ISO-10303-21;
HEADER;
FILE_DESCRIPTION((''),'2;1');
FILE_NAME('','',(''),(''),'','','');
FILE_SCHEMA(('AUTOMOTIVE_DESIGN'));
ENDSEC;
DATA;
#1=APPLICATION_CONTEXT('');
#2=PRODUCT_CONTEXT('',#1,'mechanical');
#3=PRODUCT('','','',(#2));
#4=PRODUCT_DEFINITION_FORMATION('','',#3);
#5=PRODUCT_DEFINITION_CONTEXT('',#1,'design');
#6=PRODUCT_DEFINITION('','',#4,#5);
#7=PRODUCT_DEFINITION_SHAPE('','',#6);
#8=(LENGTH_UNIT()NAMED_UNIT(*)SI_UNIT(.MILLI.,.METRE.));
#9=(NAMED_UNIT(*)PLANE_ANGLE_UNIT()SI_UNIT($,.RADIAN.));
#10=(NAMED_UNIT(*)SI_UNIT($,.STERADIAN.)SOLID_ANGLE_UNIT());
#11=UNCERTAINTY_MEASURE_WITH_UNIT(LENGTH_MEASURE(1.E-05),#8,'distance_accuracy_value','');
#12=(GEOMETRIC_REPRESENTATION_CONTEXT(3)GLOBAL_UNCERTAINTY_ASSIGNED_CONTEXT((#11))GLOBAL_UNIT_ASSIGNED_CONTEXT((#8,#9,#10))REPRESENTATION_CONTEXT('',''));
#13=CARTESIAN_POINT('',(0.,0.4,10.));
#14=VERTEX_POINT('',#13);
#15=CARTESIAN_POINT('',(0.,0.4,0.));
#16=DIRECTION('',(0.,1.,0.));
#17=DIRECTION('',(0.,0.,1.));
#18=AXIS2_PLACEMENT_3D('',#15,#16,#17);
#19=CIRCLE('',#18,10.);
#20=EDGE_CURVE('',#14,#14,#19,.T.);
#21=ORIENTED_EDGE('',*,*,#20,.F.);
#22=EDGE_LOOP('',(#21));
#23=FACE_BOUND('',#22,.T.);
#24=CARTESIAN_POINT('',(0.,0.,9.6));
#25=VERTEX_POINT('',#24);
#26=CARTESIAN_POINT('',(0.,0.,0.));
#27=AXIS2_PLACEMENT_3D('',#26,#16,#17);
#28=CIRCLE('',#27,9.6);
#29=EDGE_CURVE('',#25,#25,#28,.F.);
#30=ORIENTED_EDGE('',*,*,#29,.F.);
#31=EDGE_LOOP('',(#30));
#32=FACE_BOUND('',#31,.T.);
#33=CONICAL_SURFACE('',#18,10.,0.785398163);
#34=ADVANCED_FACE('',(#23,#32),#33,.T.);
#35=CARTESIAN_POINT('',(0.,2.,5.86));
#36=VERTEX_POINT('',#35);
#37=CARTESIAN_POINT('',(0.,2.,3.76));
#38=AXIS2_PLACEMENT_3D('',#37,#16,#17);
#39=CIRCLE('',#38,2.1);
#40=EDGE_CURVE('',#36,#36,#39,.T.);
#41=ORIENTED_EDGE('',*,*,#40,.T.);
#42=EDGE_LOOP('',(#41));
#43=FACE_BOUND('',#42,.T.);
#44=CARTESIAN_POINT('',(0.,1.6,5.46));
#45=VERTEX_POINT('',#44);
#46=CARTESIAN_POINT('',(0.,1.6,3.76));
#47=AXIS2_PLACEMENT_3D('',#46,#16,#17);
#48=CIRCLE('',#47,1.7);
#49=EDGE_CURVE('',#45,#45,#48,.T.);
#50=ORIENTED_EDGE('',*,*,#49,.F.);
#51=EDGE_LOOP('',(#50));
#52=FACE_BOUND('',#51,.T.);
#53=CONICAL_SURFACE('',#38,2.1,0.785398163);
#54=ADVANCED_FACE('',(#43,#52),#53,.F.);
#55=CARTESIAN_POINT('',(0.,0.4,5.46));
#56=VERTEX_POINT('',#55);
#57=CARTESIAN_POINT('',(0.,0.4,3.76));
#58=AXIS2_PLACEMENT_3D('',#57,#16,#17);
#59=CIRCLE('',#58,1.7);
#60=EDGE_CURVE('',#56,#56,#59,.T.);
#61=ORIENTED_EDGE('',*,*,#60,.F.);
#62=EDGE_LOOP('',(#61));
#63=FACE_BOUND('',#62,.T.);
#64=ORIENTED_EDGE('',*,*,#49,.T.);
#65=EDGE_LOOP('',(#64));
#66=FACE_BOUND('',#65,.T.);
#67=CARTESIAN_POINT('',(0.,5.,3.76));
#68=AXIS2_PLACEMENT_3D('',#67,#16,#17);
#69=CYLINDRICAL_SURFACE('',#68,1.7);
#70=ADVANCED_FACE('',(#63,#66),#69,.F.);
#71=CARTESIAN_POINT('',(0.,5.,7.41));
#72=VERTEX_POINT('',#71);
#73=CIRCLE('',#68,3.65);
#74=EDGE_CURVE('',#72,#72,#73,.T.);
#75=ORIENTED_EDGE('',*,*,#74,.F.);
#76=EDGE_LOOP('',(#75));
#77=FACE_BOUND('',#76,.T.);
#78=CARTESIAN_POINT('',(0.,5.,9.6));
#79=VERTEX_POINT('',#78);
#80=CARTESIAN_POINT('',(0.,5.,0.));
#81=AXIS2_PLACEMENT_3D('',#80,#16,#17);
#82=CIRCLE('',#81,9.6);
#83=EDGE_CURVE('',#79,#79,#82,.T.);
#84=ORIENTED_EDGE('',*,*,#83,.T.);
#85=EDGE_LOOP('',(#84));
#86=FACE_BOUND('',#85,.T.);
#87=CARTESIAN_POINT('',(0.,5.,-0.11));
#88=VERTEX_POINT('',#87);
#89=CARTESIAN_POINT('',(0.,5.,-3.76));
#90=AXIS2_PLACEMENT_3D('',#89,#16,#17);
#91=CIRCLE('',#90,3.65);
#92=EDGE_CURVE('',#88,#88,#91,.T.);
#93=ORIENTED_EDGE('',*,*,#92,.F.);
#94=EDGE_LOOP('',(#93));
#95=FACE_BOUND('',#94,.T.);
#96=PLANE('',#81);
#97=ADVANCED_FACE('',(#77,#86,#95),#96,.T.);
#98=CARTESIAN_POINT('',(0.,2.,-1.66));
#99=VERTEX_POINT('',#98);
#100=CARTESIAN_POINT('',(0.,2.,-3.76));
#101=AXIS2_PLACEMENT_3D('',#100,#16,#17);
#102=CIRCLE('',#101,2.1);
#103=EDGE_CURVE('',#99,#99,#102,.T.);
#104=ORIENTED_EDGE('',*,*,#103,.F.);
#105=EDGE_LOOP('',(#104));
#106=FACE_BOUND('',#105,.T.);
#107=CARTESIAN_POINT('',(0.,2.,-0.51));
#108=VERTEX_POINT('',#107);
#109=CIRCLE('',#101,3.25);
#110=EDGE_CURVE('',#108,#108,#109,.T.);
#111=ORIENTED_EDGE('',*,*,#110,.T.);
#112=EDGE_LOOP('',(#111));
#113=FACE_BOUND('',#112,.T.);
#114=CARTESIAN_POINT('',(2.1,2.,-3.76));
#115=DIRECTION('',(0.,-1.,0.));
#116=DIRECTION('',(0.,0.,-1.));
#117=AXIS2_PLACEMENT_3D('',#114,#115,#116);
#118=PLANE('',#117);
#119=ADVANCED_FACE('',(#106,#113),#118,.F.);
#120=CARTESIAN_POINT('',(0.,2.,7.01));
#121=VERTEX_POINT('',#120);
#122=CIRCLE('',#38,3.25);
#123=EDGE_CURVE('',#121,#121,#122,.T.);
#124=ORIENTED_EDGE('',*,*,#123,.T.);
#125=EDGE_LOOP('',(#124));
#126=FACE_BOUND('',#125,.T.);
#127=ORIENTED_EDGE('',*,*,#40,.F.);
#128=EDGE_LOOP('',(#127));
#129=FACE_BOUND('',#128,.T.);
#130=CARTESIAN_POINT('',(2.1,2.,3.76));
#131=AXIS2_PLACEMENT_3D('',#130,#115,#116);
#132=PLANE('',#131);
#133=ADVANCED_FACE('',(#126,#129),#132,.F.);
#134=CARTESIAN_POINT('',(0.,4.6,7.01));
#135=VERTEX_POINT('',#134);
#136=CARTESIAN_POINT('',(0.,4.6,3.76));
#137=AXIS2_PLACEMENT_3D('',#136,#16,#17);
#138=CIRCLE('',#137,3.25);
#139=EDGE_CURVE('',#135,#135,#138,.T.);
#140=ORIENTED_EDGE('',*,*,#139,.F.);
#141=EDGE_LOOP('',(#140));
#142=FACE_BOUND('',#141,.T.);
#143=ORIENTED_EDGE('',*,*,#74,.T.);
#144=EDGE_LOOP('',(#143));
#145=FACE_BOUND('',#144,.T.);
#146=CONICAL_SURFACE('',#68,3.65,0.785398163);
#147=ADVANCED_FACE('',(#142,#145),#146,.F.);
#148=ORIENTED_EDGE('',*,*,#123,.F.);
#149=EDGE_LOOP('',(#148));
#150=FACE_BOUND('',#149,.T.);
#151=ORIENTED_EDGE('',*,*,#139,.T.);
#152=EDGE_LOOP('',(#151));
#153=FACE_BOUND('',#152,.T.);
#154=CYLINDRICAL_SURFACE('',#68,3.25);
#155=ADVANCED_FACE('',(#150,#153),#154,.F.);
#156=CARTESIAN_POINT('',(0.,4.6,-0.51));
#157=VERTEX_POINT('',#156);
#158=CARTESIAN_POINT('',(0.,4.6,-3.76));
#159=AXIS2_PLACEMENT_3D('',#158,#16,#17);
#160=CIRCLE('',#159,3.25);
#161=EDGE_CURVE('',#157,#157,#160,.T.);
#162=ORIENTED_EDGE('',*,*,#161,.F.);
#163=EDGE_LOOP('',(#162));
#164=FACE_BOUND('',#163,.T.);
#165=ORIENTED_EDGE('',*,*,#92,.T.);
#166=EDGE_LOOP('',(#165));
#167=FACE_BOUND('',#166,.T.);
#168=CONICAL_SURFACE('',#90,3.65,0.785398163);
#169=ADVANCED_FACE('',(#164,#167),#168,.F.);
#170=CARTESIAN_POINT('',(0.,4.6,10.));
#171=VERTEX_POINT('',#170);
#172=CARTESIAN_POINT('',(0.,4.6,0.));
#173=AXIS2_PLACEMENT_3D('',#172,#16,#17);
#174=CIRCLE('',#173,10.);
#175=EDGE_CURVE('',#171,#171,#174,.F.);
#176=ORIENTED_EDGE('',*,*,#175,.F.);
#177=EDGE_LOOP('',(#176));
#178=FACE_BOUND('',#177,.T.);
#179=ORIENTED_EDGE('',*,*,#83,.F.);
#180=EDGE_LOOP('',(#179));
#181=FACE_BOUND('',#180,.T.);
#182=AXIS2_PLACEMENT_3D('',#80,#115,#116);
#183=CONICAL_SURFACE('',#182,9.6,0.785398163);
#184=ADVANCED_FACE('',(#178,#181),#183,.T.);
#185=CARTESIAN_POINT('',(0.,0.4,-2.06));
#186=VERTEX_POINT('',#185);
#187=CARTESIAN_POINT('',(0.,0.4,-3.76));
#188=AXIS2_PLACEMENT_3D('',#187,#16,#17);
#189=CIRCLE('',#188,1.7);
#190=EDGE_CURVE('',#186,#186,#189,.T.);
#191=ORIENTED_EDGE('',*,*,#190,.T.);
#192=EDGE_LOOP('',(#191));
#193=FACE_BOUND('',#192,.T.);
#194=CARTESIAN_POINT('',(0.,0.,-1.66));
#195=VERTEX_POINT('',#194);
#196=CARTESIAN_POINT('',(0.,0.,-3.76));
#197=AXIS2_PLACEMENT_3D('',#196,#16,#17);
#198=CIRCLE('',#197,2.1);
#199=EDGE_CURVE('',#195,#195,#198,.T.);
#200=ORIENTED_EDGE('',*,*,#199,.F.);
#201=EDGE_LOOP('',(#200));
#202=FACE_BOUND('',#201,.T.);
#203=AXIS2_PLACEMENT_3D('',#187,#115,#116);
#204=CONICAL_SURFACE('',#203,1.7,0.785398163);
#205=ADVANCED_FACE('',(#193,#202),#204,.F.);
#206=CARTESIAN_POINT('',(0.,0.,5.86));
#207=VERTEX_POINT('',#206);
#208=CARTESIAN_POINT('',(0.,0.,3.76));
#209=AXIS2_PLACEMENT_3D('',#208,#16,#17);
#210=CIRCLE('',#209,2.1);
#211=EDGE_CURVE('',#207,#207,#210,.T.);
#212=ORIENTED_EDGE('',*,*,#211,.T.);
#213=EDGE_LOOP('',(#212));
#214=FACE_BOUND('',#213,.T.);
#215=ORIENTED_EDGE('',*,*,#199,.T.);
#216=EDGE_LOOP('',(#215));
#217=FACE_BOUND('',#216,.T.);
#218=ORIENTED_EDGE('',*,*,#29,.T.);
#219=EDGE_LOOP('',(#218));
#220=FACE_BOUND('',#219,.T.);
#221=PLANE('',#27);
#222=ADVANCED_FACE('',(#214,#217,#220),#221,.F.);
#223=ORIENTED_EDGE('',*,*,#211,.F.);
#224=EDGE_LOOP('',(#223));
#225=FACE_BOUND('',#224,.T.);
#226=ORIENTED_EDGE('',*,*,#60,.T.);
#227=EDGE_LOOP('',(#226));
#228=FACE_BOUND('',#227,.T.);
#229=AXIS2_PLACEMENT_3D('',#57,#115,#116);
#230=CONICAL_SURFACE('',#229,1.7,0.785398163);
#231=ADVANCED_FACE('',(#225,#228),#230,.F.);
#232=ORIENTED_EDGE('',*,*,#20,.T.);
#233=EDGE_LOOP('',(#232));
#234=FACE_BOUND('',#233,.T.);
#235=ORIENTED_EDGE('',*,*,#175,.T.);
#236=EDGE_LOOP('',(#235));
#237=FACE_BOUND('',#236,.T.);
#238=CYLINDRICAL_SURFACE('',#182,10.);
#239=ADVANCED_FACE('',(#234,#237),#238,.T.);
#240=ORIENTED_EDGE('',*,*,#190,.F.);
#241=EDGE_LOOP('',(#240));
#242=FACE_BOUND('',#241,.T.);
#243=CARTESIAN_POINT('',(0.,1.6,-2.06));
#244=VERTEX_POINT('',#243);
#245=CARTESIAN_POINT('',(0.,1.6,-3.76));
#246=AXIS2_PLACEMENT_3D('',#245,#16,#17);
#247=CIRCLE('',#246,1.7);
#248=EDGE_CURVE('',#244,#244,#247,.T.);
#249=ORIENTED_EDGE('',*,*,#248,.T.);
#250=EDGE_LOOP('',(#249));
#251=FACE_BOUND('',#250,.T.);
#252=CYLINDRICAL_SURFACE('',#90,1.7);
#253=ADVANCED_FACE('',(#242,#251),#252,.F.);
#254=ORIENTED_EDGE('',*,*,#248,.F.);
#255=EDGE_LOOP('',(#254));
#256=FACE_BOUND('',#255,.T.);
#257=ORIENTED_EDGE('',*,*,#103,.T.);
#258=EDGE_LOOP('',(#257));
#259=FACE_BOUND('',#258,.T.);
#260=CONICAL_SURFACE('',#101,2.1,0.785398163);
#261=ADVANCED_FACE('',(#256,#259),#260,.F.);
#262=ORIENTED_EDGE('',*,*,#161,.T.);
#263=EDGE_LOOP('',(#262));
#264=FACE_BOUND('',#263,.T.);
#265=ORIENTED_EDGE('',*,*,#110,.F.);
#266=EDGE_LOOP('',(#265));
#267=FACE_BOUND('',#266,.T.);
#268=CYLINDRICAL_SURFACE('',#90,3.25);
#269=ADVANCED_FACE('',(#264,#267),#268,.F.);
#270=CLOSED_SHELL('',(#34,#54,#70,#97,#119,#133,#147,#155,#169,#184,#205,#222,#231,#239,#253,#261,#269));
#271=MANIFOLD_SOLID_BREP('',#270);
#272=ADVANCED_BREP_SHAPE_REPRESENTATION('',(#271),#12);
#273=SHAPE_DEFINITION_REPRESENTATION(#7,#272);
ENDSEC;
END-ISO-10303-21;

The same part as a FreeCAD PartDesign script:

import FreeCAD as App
import Part
import Sketcher
from FreeCAD import Vector


def edges_at(feature, points):
    """Names of the edges that pass closest to the given points."""
    edges = feature.Shape.Edges
    near = lambda p: min(range(len(edges)), key=lambda i: edges[i].distToShape(Part.Vertex(*p))[0])
    return sorted({f"Edge{near(p) + 1}" for p in points})


def add_polygon(sketch, points):
    """Adds a closed chain of lines whose ends are joined by coincident constraints."""
    first, n = sketch.GeometryCount, len(points)
    for a, b in zip(points, points[1:] + points[:1]):
        sketch.addGeometry(Part.LineSegment(App.Vector(*a, 0), App.Vector(*b, 0)), False)
    for i in range(n):
        sketch.addConstraint(Sketcher.Constraint("Coincident", first + i, 2, first + (i + 1) % n, 1))

doc = App.newDocument("Part")
body = doc.addObject("PartDesign::Body", "Body")

sketch1 = body.newObject("Sketcher::SketchObject", "Sketch")
sketch1.AttachmentSupport = (doc.getObject("XZ_Plane"), [""])
sketch1.MapMode = "FlatFace"
sketch1.addGeometry(Part.Circle(Vector(0, 0, 0), Vector(0, 0, 1), 10), False)
sketch1.addConstraint(Sketcher.Constraint("Coincident", 0, 3, -1, 1))
sketch1.addConstraint(Sketcher.Constraint("Diameter", 0, 20.0))
pad1 = body.newObject("PartDesign::Pad", "Pad")
pad1.Profile = sketch1
pad1.Length = 5
pad1.Reversed = True

sketch2 = body.newObject("Sketcher::SketchObject", "Sketch001")
sketch2.AttachmentSupport = (doc.getObject("YZ_Plane"), [""])
sketch2.MapMode = "FlatFace"
add_polygon(sketch2, [(0, -3.8), (5, -3.8), (5, -0.1), (4.6, -0.5), (2, -0.5), (2, -1.7), (1.6, -2.1), (0.4, -2.1), (0, -1.7)])
sketch2.addGeometry(Part.LineSegment(Vector(5, -3.8, 0), Vector(0, -3.8, 0)), True)
sketch2.addConstraint(Sketcher.Constraint("Horizontal", 0))
sketch2.addConstraint(Sketcher.Constraint("Vertical", 1))
sketch2.addConstraint(Sketcher.Constraint("Horizontal", 3))
sketch2.addConstraint(Sketcher.Constraint("Vertical", 4))
sketch2.addConstraint(Sketcher.Constraint("Horizontal", 6))
sketch2.addConstraint(Sketcher.Constraint("Vertical", 8))
sketch2.addConstraint(Sketcher.Constraint("Horizontal", 9))
sketch2.addConstraint(Sketcher.Constraint("Coincident", 9, 1, 0, 2))
sketch2.addConstraint(Sketcher.Constraint("PointOnObject", 7, 2, -2))
sketch2.addConstraint(Sketcher.Constraint("PointOnObject", 9, 2, -2))
sketch2.addConstraint(Sketcher.Constraint("Parallel", 2, 5))
sketch2.addConstraint(Sketcher.Constraint("Perpendicular", 5, 7))
sketch2.addConstraint(Sketcher.Constraint("Horizontal", 4, 2, 7, 2))
sketch2.addConstraint(Sketcher.Constraint("Equal", 2, 5))
sketch2.addConstraint(Sketcher.Constraint("Equal", 5, 7))
sketch2.addConstraint(Sketcher.Constraint("DistanceX", 0, 1, 0, 2, 5.0))
sketch2.addConstraint(Sketcher.Constraint("DistanceX", 3, 2, 3, 1, 2.6))
sketch2.addConstraint(Sketcher.Constraint("DistanceX", 6, 2, 6, 1, 1.2))
sketch2.addConstraint(Sketcher.Constraint("DistanceY", 8, 2, 8, 1, 2.1))
sketch2.addConstraint(Sketcher.Constraint("DistanceY", 1, 1, 1, 2, 3.65))
sketch2.addConstraint(Sketcher.Constraint("DistanceY", 0, 2, -1, 1, 3.76))
groove = body.newObject("PartDesign::Groove", "Groove")
groove.Profile = sketch2
groove.ReferenceAxis = (sketch2, ["Axis0"])
groove.Angle = 360
doc.recompute()

linearpattern = body.newObject("PartDesign::LinearPattern", "LinearPattern")
linearpattern.Originals = [groove]
linearpattern.Direction = (doc.getObject("Z_Axis"), [""])
linearpattern.Mode = "offset"
linearpattern.Offset = 7.52
linearpattern.Occurrences = 2
body.Tip = linearpattern
doc.recompute()

chamfer = body.newObject("PartDesign::Chamfer", "Chamfer")
chamfer.Base = (linearpattern, edges_at(linearpattern, [(0, 0, -10), (0, 5, -10)]))
chamfer.Size = 0.4

doc.recompute()
